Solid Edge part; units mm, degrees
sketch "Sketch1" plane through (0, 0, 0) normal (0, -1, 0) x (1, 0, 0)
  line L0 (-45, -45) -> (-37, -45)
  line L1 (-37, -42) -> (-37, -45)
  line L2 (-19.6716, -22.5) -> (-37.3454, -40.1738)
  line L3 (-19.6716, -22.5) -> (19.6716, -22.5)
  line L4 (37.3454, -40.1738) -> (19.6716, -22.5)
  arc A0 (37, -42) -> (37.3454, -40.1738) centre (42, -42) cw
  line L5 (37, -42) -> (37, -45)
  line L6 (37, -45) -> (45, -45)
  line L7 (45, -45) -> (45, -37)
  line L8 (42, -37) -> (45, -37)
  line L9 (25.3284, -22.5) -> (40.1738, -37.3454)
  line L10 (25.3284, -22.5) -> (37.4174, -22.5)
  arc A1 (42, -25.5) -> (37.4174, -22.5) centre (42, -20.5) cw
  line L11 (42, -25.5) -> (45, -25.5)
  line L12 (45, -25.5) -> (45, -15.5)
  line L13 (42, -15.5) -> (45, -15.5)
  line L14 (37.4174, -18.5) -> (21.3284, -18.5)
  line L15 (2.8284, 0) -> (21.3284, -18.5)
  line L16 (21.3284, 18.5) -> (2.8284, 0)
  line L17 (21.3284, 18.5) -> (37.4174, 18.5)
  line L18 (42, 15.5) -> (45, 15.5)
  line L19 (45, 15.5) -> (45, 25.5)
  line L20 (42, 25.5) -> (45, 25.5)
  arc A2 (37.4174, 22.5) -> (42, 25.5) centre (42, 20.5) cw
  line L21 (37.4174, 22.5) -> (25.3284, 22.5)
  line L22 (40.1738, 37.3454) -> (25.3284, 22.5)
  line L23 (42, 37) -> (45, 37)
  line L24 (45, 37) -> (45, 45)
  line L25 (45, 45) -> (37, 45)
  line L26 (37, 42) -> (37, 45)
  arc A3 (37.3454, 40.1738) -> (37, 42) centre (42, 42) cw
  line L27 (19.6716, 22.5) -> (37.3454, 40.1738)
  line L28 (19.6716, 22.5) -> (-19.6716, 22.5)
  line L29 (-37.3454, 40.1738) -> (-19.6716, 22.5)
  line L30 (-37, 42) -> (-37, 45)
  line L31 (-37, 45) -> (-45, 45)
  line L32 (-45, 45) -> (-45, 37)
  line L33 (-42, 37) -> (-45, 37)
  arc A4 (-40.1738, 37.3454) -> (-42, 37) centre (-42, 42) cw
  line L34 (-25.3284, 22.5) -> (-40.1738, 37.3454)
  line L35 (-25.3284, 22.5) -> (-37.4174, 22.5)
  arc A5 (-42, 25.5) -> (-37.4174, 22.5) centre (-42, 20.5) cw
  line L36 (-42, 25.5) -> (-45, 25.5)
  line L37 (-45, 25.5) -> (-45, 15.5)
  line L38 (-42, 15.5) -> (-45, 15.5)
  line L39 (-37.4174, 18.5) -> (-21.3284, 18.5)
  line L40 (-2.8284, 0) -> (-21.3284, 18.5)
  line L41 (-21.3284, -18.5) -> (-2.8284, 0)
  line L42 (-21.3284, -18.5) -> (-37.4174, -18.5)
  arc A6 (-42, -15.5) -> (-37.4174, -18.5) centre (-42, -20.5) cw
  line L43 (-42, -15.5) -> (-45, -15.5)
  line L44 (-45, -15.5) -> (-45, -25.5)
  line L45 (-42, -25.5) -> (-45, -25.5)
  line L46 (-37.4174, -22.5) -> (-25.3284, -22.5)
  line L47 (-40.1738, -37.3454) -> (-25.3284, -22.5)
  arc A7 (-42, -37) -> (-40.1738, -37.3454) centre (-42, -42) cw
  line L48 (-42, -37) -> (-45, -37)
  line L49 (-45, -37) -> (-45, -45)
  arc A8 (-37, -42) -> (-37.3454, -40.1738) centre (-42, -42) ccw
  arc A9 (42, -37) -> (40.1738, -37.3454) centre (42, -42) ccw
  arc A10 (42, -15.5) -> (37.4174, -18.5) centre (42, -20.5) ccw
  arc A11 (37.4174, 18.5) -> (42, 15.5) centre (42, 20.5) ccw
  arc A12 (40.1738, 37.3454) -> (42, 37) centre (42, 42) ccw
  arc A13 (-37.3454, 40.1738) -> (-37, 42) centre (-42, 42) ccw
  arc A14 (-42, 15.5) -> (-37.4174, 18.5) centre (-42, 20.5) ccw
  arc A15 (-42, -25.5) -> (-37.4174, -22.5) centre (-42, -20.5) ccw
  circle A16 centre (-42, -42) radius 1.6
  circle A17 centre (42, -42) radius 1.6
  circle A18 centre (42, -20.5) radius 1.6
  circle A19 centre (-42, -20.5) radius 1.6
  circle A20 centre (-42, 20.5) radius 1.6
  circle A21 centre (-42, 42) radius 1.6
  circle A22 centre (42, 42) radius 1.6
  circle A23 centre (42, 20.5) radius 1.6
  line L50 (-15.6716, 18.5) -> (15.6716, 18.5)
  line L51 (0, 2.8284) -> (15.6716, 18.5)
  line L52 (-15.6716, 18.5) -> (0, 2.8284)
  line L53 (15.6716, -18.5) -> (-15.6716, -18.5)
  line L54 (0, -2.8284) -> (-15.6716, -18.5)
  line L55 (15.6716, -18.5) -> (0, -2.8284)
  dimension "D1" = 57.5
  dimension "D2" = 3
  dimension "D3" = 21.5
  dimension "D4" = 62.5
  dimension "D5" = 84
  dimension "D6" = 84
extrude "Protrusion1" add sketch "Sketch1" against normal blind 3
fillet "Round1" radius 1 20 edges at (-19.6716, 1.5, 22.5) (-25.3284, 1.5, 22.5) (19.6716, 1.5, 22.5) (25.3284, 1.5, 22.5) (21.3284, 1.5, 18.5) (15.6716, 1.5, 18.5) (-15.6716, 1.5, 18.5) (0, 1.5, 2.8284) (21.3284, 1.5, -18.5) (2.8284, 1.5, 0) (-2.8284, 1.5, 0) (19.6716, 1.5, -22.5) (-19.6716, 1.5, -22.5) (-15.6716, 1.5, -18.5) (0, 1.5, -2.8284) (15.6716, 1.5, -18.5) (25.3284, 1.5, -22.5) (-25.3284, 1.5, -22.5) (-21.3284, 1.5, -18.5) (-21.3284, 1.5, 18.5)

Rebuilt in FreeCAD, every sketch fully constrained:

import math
import FreeCAD as App
import Part
import Sketcher
from FreeCAD import Vector


def edges_at(feature, points):
    """Names of the edges that pass closest to the given points."""
    edges = feature.Shape.Edges
    near = lambda p: min(range(len(edges)), key=lambda i: edges[i].distToShape(Part.Vertex(*p))[0])
    return sorted({f"Edge{near(p) + 1}" for p in points})


def add_polygon(sketch, points):
    """Adds a closed chain of lines whose ends are joined by coincident constraints."""
    first, n = sketch.GeometryCount, len(points)
    for a, b in zip(points, points[1:] + points[:1]):
        sketch.addGeometry(Part.LineSegment(App.Vector(*a, 0), App.Vector(*b, 0)), False)
    for i in range(n):
        sketch.addConstraint(Sketcher.Constraint("Coincident", first + i, 2, first + (i + 1) % n, 1))

doc = App.newDocument("Part")
body = doc.addObject("PartDesign::Body", "Body")

sketch1 = body.newObject("Sketcher::SketchObject", "Sketch")
sketch1.AttachmentSupport = (doc.getObject("XZ_Plane"), [""])
sketch1.MapMode = "FlatFace"
sketch1.addGeometry(Part.LineSegment(Vector(-45, -37, 0), Vector(-45, -45, 0)), False)
sketch1.addGeometry(Part.LineSegment(Vector(-45, -45, 0), Vector(-37, -45, 0)), False)
sketch1.addGeometry(Part.LineSegment(Vector(-37, -45, 0), Vector(-37, -42, 0)), False)
sketch1.addGeometry(Part.ArcOfCircle(Part.Circle(Vector(-42, -42, 0), Vector(0, 0, 1), 5), math.radians(0), math.radians(21)), False)
sketch1.addGeometry(Part.LineSegment(Vector(-37.3, -40.2, 0), Vector(-19.7, -22.5, 0)), False)
sketch1.addGeometry(Part.LineSegment(Vector(-19.7, -22.5, 0), Vector(19.7, -22.5, 0)), False)
sketch1.addGeometry(Part.LineSegment(Vector(19.7, -22.5, 0), Vector(37.3, -40.2, 0)), False)
sketch1.addGeometry(Part.ArcOfCircle(Part.Circle(Vector(42, -42, 0), Vector(0, 0, 1), 5), math.radians(159), math.radians(180)), False)
sketch1.addGeometry(Part.LineSegment(Vector(37, -42, 0), Vector(37, -45, 0)), False)
sketch1.addGeometry(Part.LineSegment(Vector(37, -45, 0), Vector(45, -45, 0)), False)
sketch1.addGeometry(Part.LineSegment(Vector(45, -45, 0), Vector(45, -37, 0)), False)
sketch1.addGeometry(Part.LineSegment(Vector(45, -37, 0), Vector(42, -37, 0)), False)
sketch1.addGeometry(Part.ArcOfCircle(Part.Circle(Vector(42, -42, 0), Vector(0, 0, 1), 5), math.radians(90), math.radians(111)), False)
sketch1.addGeometry(Part.LineSegment(Vector(40.2, -37.3, 0), Vector(25.3, -22.5, 0)), False)
sketch1.addGeometry(Part.LineSegment(Vector(25.3, -22.5, 0), Vector(37.4, -22.5, 0)), False)
sketch1.addGeometry(Part.ArcOfCircle(Part.Circle(Vector(42, -20.5, 0), Vector(0, 0, 1), 5), math.radians(-156), math.radians(-90)), False)
sketch1.addGeometry(Part.LineSegment(Vector(42, -25.5, 0), Vector(45, -25.5, 0)), False)
sketch1.addGeometry(Part.LineSegment(Vector(45, -25.5, 0), Vector(45, -15.5, 0)), False)
sketch1.addGeometry(Part.LineSegment(Vector(45, -15.5, 0), Vector(42, -15.5, 0)), False)
sketch1.addGeometry(Part.ArcOfCircle(Part.Circle(Vector(42, -20.5, 0), Vector(0, 0, 1), 5), math.radians(90), math.radians(156)), False)
sketch1.addGeometry(Part.LineSegment(Vector(37.4, -18.5, 0), Vector(21.3, -18.5, 0)), False)
sketch1.addGeometry(Part.LineSegment(Vector(21.3, -18.5, 0), Vector(2.8, 0, 0)), False)
sketch1.addGeometry(Part.LineSegment(Vector(2.8, 0, 0), Vector(21.3, 18.5, 0)), False)
sketch1.addGeometry(Part.LineSegment(Vector(21.3, 18.5, 0), Vector(37.4, 18.5, 0)), False)
sketch1.addGeometry(Part.ArcOfCircle(Part.Circle(Vector(42, 20.5, 0), Vector(0, 0, 1), 5), math.radians(-156), math.radians(-90)), False)
sketch1.addGeometry(Part.LineSegment(Vector(42, 15.5, 0), Vector(45, 15.5, 0)), False)
sketch1.addGeometry(Part.LineSegment(Vector(45, 15.5, 0), Vector(45, 25.5, 0)), False)
sketch1.addGeometry(Part.LineSegment(Vector(45, 25.5, 0), Vector(42, 25.5, 0)), False)
sketch1.addGeometry(Part.ArcOfCircle(Part.Circle(Vector(42, 20.5, 0), Vector(0, 0, 1), 5), math.radians(90), math.radians(156)), False)
sketch1.addGeometry(Part.LineSegment(Vector(37.4, 22.5, 0), Vector(25.3, 22.5, 0)), False)
sketch1.addGeometry(Part.LineSegment(Vector(25.3, 22.5, 0), Vector(40.2, 37.3, 0)), False)
sketch1.addGeometry(Part.ArcOfCircle(Part.Circle(Vector(42, 42, 0), Vector(0, 0, 1), 5), math.radians(-111), math.radians(-90)), False)
sketch1.addGeometry(Part.LineSegment(Vector(42, 37, 0), Vector(45, 37, 0)), False)
sketch1.addGeometry(Part.LineSegment(Vector(45, 37, 0), Vector(45, 45, 0)), False)
sketch1.addGeometry(Part.LineSegment(Vector(45, 45, 0), Vector(37, 45, 0)), False)
sketch1.addGeometry(Part.LineSegment(Vector(37, 45, 0), Vector(37, 42, 0)), False)
sketch1.addGeometry(Part.ArcOfCircle(Part.Circle(Vector(42, 42, 0), Vector(0, 0, 1), 5), math.radians(180), math.radians(201)), False)
sketch1.addGeometry(Part.LineSegment(Vector(37.3, 40.2, 0), Vector(19.7, 22.5, 0)), False)
sketch1.addGeometry(Part.LineSegment(Vector(19.7, 22.5, 0), Vector(-19.7, 22.5, 0)), False)
sketch1.addGeometry(Part.LineSegment(Vector(-19.7, 22.5, 0), Vector(-37.3, 40.2, 0)), False)
sketch1.addGeometry(Part.ArcOfCircle(Part.Circle(Vector(-42, 42, 0), Vector(0, 0, 1), 5), math.radians(-21), math.radians(0)), False)
sketch1.addGeometry(Part.LineSegment(Vector(-37, 42, 0), Vector(-37, 45, 0)), False)
sketch1.addGeometry(Part.LineSegment(Vector(-37, 45, 0), Vector(-45, 45, 0)), False)
sketch1.addGeometry(Part.LineSegment(Vector(-45, 45, 0), Vector(-45, 37, 0)), False)
sketch1.addGeometry(Part.LineSegment(Vector(-45, 37, 0), Vector(-42, 37, 0)), False)
sketch1.addGeometry(Part.ArcOfCircle(Part.Circle(Vector(-42, 42, 0), Vector(0, 0, 1), 5), math.radians(-90), math.radians(-69)), False)
sketch1.addGeometry(Part.LineSegment(Vector(-40.2, 37.3, 0), Vector(-25.3, 22.5, 0)), False)
sketch1.addGeometry(Part.LineSegment(Vector(-25.3, 22.5, 0), Vector(-37.4, 22.5, 0)), False)
sketch1.addGeometry(Part.ArcOfCircle(Part.Circle(Vector(-42, 20.5, 0), Vector(0, 0, 1), 5), math.radians(24), math.radians(90)), False)
sketch1.addGeometry(Part.LineSegment(Vector(-42, 25.5, 0), Vector(-45, 25.5, 0)), False)
sketch1.addGeometry(Part.LineSegment(Vector(-45, 25.5, 0), Vector(-45, 15.5, 0)), False)
sketch1.addGeometry(Part.LineSegment(Vector(-45, 15.5, 0), Vector(-42, 15.5, 0)), False)
sketch1.addGeometry(Part.ArcOfCircle(Part.Circle(Vector(-42, 20.5, 0), Vector(0, 0, 1), 5), math.radians(-90), math.radians(-24)), False)
sketch1.addGeometry(Part.LineSegment(Vector(-37.4, 18.5, 0), Vector(-21.3, 18.5, 0)), False)
sketch1.addGeometry(Part.LineSegment(Vector(-21.3, 18.5, 0), Vector(-2.8, 0, 0)), False)
sketch1.addGeometry(Part.LineSegment(Vector(-2.8, 0, 0), Vector(-21.3, -18.5, 0)), False)
sketch1.addGeometry(Part.LineSegment(Vector(-21.3, -18.5, 0), Vector(-37.4, -18.5, 0)), False)
sketch1.addGeometry(Part.ArcOfCircle(Part.Circle(Vector(-42, -20.5, 0), Vector(0, 0, 1), 5), math.radians(24), math.radians(90)), False)
sketch1.addGeometry(Part.LineSegment(Vector(-42, -15.5, 0), Vector(-45, -15.5, 0)), False)
sketch1.addGeometry(Part.LineSegment(Vector(-45, -15.5, 0), Vector(-45, -25.5, 0)), False)
sketch1.addGeometry(Part.LineSegment(Vector(-45, -25.5, 0), Vector(-42, -25.5, 0)), False)
sketch1.addGeometry(Part.ArcOfCircle(Part.Circle(Vector(-42, -20.5, 0), Vector(0, 0, 1), 5), math.radians(-90), math.radians(-24)), False)
sketch1.addGeometry(Part.LineSegment(Vector(-37.4, -22.5, 0), Vector(-25.3, -22.5, 0)), False)
sketch1.addGeometry(Part.LineSegment(Vector(-25.3, -22.5, 0), Vector(-40.2, -37.3, 0)), False)
sketch1.addGeometry(Part.ArcOfCircle(Part.Circle(Vector(-42, -42, 0), Vector(0, 0, 1), 5), math.radians(69), math.radians(90)), False)
sketch1.addGeometry(Part.LineSegment(Vector(-42, -37, 0), Vector(-45, -37, 0)), False)
sketch1.addGeometry(Part.Circle(Vector(-42, -42, 0), Vector(0, 0, 1), 1.6), False)
sketch1.addGeometry(Part.Circle(Vector(-42, -20.5, 0), Vector(0, 0, 1), 1.6), False)
sketch1.addGeometry(Part.Circle(Vector(42, -42, 0), Vector(0, 0, 1), 1.6), False)
add_polygon(sketch1, [(0, -2.8), (15.7, -18.5), (-15.7, -18.5)])
sketch1.addGeometry(Part.Circle(Vector(42, -20.5, 0), Vector(0, 0, 1), 1.6), False)
sketch1.addGeometry(Part.Circle(Vector(-42, 20.5, 0), Vector(0, 0, 1), 1.6), False)
sketch1.addGeometry(Part.Circle(Vector(-42, 42, 0), Vector(0, 0, 1), 1.6), False)
add_polygon(sketch1, [(0, 2.8), (-15.7, 18.5), (15.7, 18.5)])
sketch1.addGeometry(Part.Circle(Vector(42, 20.5, 0), Vector(0, 0, 1), 1.6), False)
sketch1.addGeometry(Part.Circle(Vector(42, 42, 0), Vector(0, 0, 1), 1.6), False)
sketch1.addConstraint([
    Sketcher.Constraint("Coincident", 0, 2, 1, 1),
    Sketcher.Constraint("Coincident", 1, 2, 2, 1),
    Sketcher.Constraint("Tangent", 2, 2, 3, 1),
    Sketcher.Constraint("Coincident", 3, 2, 4, 1),
    Sketcher.Constraint("Coincident", 4, 2, 5, 1),
    Sketcher.Constraint("Coincident", 5, 2, 6, 1),
    Sketcher.Constraint("Coincident", 6, 2, 7, 1),
    Sketcher.Constraint("Tangent", 7, 2, 8, 1),
    Sketcher.Constraint("Coincident", 8, 2, 9, 1),
    Sketcher.Constraint("Coincident", 9, 2, 10, 1),
    Sketcher.Constraint("Coincident", 10, 2, 11, 1),
    Sketcher.Constraint("Tangent", 11, 2, 12, 1),
    Sketcher.Constraint("Coincident", 12, 2, 13, 1),
    Sketcher.Constraint("Coincident", 13, 2, 14, 1),
    Sketcher.Constraint("Coincident", 14, 2, 15, 1),
    Sketcher.Constraint("Tangent", 15, 2, 16, 1),
    Sketcher.Constraint("Coincident", 16, 2, 17, 1),
    Sketcher.Constraint("Coincident", 17, 2, 18, 1),
    Sketcher.Constraint("Tangent", 18, 2, 19, 1),
    Sketcher.Constraint("Coincident", 19, 2, 20, 1),
    Sketcher.Constraint("Coincident", 20, 2, 21, 1),
    Sketcher.Constraint("Coincident", 21, 2, 22, 1),
    Sketcher.Constraint("Coincident", 22, 2, 23, 1),
    Sketcher.Constraint("Coincident", 23, 2, 24, 1),
    Sketcher.Constraint("Tangent", 24, 2, 25, 1),
    Sketcher.Constraint("Coincident", 25, 2, 26, 1),
    Sketcher.Constraint("Coincident", 26, 2, 27, 1),
    Sketcher.Constraint("Tangent", 27, 2, 28, 1),
    Sketcher.Constraint("Coincident", 28, 2, 29, 1),
    Sketcher.Constraint("Coincident", 29, 2, 30, 1),
    Sketcher.Constraint("Coincident", 30, 2, 31, 1),
    Sketcher.Constraint("Tangent", 31, 2, 32, 1),
    Sketcher.Constraint("Coincident", 32, 2, 33, 1),
    Sketcher.Constraint("Coincident", 33, 2, 34, 1),
    Sketcher.Constraint("Coincident", 34, 2, 35, 1),
    Sketcher.Constraint("Tangent", 35, 2, 36, 1),
    Sketcher.Constraint("Coincident", 36, 2, 37, 1),
    Sketcher.Constraint("Coincident", 37, 2, 38, 1),
    Sketcher.Constraint("Coincident", 38, 2, 39, 1),
    Sketcher.Constraint("Coincident", 39, 2, 40, 1),
    Sketcher.Constraint("Tangent", 40, 2, 41, 1),
    Sketcher.Constraint("Coincident", 41, 2, 42, 1),
    Sketcher.Constraint("Coincident", 42, 2, 43, 1),
    Sketcher.Constraint("Coincident", 43, 2, 44, 1),
    Sketcher.Constraint("Tangent", 44, 2, 45, 1),
    Sketcher.Constraint("Coincident", 45, 2, 46, 1),
    Sketcher.Constraint("Coincident", 46, 2, 47, 1),
    Sketcher.Constraint("Coincident", 47, 2, 48, 1),
    Sketcher.Constraint("Tangent", 48, 2, 49, 1),
    Sketcher.Constraint("Coincident", 49, 2, 50, 1),
    Sketcher.Constraint("Coincident", 50, 2, 51, 1),
    Sketcher.Constraint("Tangent", 51, 2, 52, 1),
    Sketcher.Constraint("Coincident", 52, 2, 53, 1),
    Sketcher.Constraint("Coincident", 53, 2, 54, 1),
    Sketcher.Constraint("Coincident", 54, 2, 55, 1),
    Sketcher.Constraint("Coincident", 55, 2, 56, 1),
    Sketcher.Constraint("Coincident", 56, 2, 57, 1),
    Sketcher.Constraint("Tangent", 57, 2, 58, 1),
    Sketcher.Constraint("Coincident", 58, 2, 59, 1),
    Sketcher.Constraint("Coincident", 59, 2, 60, 1),
    Sketcher.Constraint("Tangent", 60, 2, 61, 1),
    Sketcher.Constraint("Coincident", 61, 2, 62, 1),
    Sketcher.Constraint("Coincident", 62, 2, 63, 1),
    Sketcher.Constraint("Coincident", 63, 2, 64, 1),
    Sketcher.Constraint("Tangent", 64, 2, 65, 1),
    Sketcher.Constraint("Coincident", 65, 2, 0, 1),
    Sketcher.Constraint("Vertical", 0),
    Sketcher.Constraint("Horizontal", 1),
    Sketcher.Constraint("Vertical", 2),
    Sketcher.Constraint("Horizontal", 5),
    Sketcher.Constraint("Vertical", 8),
    Sketcher.Constraint("Horizontal", 9),
    Sketcher.Constraint("Vertical", 10),
    Sketcher.Constraint("Horizontal", 11),
    Sketcher.Constraint("Horizontal", 14),
    Sketcher.Constraint("Horizontal", 16),
    Sketcher.Constraint("Vertical", 17),
    Sketcher.Constraint("Horizontal", 18),
    Sketcher.Constraint("Horizontal", 20),
    Sketcher.Constraint("Horizontal", 23),
    Sketcher.Constraint("Horizontal", 25),
    Sketcher.Constraint("Vertical", 26),
    Sketcher.Constraint("Horizontal", 27),
    Sketcher.Constraint("Horizontal", 29),
    Sketcher.Constraint("Horizontal", 32),
    Sketcher.Constraint("Vertical", 33),
    Sketcher.Constraint("Horizontal", 34),
    Sketcher.Constraint("Vertical", 35),
    Sketcher.Constraint("Horizontal", 38),
    Sketcher.Constraint("Vertical", 41),
    Sketcher.Constraint("Horizontal", 42),
    Sketcher.Constraint("Vertical", 43),
    Sketcher.Constraint("Horizontal", 44),
    Sketcher.Constraint("Horizontal", 47),
    Sketcher.Constraint("Horizontal", 49),
    Sketcher.Constraint("Vertical", 50),
    Sketcher.Constraint("Horizontal", 51),
    Sketcher.Constraint("Horizontal", 53),
    Sketcher.Constraint("Horizontal", 56),
    Sketcher.Constraint("Horizontal", 58),
    Sketcher.Constraint("Vertical", 59),
    Sketcher.Constraint("Horizontal", 60),
    Sketcher.Constraint("Horizontal", 62),
    Sketcher.Constraint("Horizontal", 65),
    Sketcher.Constraint("Horizontal", 70),
    Sketcher.Constraint("Horizontal", 76),
    Sketcher.Constraint("Coincident", 12, 3, 7, 3),
    Sketcher.Constraint("Coincident", 19, 3, 15, 3),
    Sketcher.Constraint("Coincident", 28, 3, 24, 3),
    Sketcher.Constraint("Coincident", 36, 3, 31, 3),
    Sketcher.Constraint("Coincident", 45, 3, 40, 3),
    Sketcher.Constraint("Coincident", 52, 3, 48, 3),
    Sketcher.Constraint("Coincident", 61, 3, 57, 3),
    Sketcher.Constraint("Coincident", 64, 3, 3, 3),
    Sketcher.Constraint("Coincident", 66, 3, 3, 3),
    Sketcher.Constraint("Coincident", 67, 3, 57, 3),
    Sketcher.Constraint("Coincident", 68, 3, 7, 3),
    Sketcher.Constraint("Coincident", 72, 3, 15, 3),
    Sketcher.Constraint("Coincident", 73, 3, 48, 3),
    Sketcher.Constraint("Coincident", 74, 3, 40, 3),
    Sketcher.Constraint("Coincident", 78, 3, 24, 3),
    Sketcher.Constraint("Coincident", 79, 3, 31, 3),
    Sketcher.Constraint("Equal", 3, 7),
    Sketcher.Constraint("Equal", 7, 12),
    Sketcher.Constraint("Equal", 12, 15),
    Sketcher.Constraint("Equal", 15, 19),
    Sketcher.Constraint("Equal", 19, 24),
    Sketcher.Constraint("Equal", 24, 28),
    Sketcher.Constraint("Equal", 28, 31),
    Sketcher.Constraint("Equal", 31, 36),
    Sketcher.Constraint("Equal", 36, 40),
    Sketcher.Constraint("Equal", 40, 45),
    Sketcher.Constraint("Equal", 45, 48),
    Sketcher.Constraint("Equal", 48, 52),
    Sketcher.Constraint("Equal", 52, 57),
    Sketcher.Constraint("Equal", 57, 61),
    Sketcher.Constraint("Equal", 61, 64),
    Sketcher.Constraint("Equal", 66, 67),
    Sketcher.Constraint("Equal", 67, 68),
    Sketcher.Constraint("Equal", 68, 72),
    Sketcher.Constraint("Equal", 72, 73),
    Sketcher.Constraint("Equal", 73, 74),
    Sketcher.Constraint("Equal", 74, 78),
    Sketcher.Constraint("Equal", 78, 79),
    Sketcher.Constraint("Symmetric", 3, 3, 31, 3, -1, 1),
    Sketcher.Constraint("Symmetric", 7, 3, 40, 3, -1, 1),
    Sketcher.Constraint("Symmetric", 15, 3, 48, 3, -1, 1),
    Sketcher.Constraint("Symmetric", 24, 3, 57, 3, -1, 1),
    Sketcher.Constraint("Symmetric", 0, 2, 33, 2, -1, 1),
    Sketcher.Constraint("Symmetric", 4, 2, 37, 2, -1, 1),
    Sketcher.Constraint("Symmetric", 9, 2, 42, 2, -1, 1),
    Sketcher.Constraint("Symmetric", 13, 2, 46, 2, -1, 1),
    Sketcher.Constraint("Symmetric", 20, 2, 53, 2, -1, 1),
    Sketcher.Constraint("Symmetric", 21, 2, 54, 2, -1, 1),
    Sketcher.Constraint("Symmetric", 22, 2, 55, 2, -1, 1),
    Sketcher.Constraint("Symmetric", 29, 2, 62, 2, -1, 1),
    Sketcher.Constraint("Symmetric", 69, 2, 75, 2, -1, 1),
    Sketcher.Constraint("Symmetric", 71, 2, 77, 2, -1, 1),
    Sketcher.Constraint("Symmetric", 3, 3, 7, 3, -2),
    Sketcher.Constraint("Symmetric", 24, 3, 48, 3, -2),
    Sketcher.Constraint("Symmetric", 0, 2, 9, 2, -2),
    Sketcher.Constraint("Symmetric", 29, 2, 46, 2, -2),
    Sketcher.Constraint("Symmetric", 22, 2, 53, 2, -2),
    Sketcher.Constraint("PointOnObject", 21, 2, -1),
    Sketcher.Constraint("PointOnObject", 71, 2, -2),
    Sketcher.Constraint("Perpendicular", 4, 6),
    Sketcher.Constraint("Parallel", 6, 13),
    Sketcher.Constraint("Parallel", 13, 21),
    Sketcher.Constraint("Perpendicular", 21, 22),
    Sketcher.Constraint("Parallel", 22, 30),
    Sketcher.Constraint("Parallel", 30, 37),
    Sketcher.Constraint("Perpendicular", 37, 39),
    Sketcher.Constraint("Parallel", 39, 46),
    Sketcher.Constraint("Parallel", 55, 63),
    Sketcher.Constraint("Perpendicular", 63, 69),
    Sketcher.Constraint("Perpendicular", 69, 71),
    Sketcher.Constraint("Perpendicular", 75, 77),
    Sketcher.Constraint("Horizontal", 3, 2, 6, 2),
    Sketcher.Constraint("Horizontal", 5, 2, 13, 2),
    Sketcher.Constraint("Horizontal", 36, 2, 39, 2),
    Sketcher.Constraint("Horizontal", 56, 2, 69, 2),
    Sketcher.Constraint("Vertical", 12, 3, 15, 3),
    Sketcher.Constraint("Vertical", 10, 2, 16, 2),
    Sketcher.Constraint("Vertical", 14, 2, 19, 2),
    Sketcher.Constraint("Vertical", 17, 2, 25, 2),
    Sketcher.Constraint("Vertical", 43, 2, 49, 2),
    Sketcher.Constraint("Vertical", 50, 2, 58, 2),
    Sketcher.Constraint("Equal", 42, 0),
    Sketcher.Constraint("DistanceX", 3, 3, -1, 1, 42.0),
    Sketcher.Constraint("DistanceY", 3, 3, -1, 1, 42.0),
    Sketcher.Constraint("Radius", 3, 5.0),
    Sketcher.Constraint("Diameter", 66, 3.2),
    Sketcher.Constraint("DistanceX", 1, 1, 1, 2, 8.0),
    Sketcher.Constraint("DistanceY", 15, 3, -1, 1, 20.5),
    Sketcher.Constraint("DistanceY", 4, 2, -1, 1, 22.5),
    Sketcher.Constraint("DistanceX", 14, 1, 14, 2, 12.089),
    Sketcher.Constraint("DistanceX", 20, 2, 20, 1, 16.089),
    Sketcher.Constraint("Distance", 69, 22.163),
    Sketcher.Constraint("DistanceX", 5, 1, 5, 2, 39.3432),
])
pad1 = body.newObject("PartDesign::Pad", "Pad")
pad1.Profile = sketch1
pad1.Length = 3
pad1.Reversed = True
doc.recompute()

fillet = body.newObject("PartDesign::Fillet", "Fillet")
fillet.Base = (pad1, edges_at(pad1, [
    (-19.672, 1.5, 22.5),
    (-25.328, 1.5, 22.5),
    (19.672, 1.5, 22.5),
    (25.328, 1.5, 22.5),
    (21.328, 1.5, 18.5),
    (15.672, 1.5, 18.5),
    (-15.672, 1.5, 18.5),
    (0, 1.5, 2.828),
    (21.328, 1.5, -18.5),
    (2.828, 1.5, 0),
    (-2.828, 1.5, 0),
    (19.672, 1.5, -22.5),
    (-19.672, 1.5, -22.5),
    (-15.672, 1.5, -18.5),
    (0, 1.5, -2.828),
    (15.672, 1.5, -18.5),
    (25.328, 1.5, -22.5),
    (-25.328, 1.5, -22.5),
    (-21.328, 1.5, -18.5),
    (-21.328, 1.5, 18.5),
]))
fillet.Radius = 1

doc.recompute()
